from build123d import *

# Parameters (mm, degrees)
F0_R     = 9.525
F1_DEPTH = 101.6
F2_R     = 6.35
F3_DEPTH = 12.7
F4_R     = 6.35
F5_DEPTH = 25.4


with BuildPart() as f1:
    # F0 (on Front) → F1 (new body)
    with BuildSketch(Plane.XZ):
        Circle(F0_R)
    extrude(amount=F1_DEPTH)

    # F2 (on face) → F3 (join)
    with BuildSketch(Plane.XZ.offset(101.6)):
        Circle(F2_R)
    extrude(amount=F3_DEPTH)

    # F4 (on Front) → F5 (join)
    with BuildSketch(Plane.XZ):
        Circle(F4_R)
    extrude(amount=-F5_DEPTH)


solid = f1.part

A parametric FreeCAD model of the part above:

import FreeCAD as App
import Part
import Sketcher
from FreeCAD import Vector
Q = App.Units.Quantity

doc = App.newDocument("Part")
body = doc.addObject("PartDesign::Body", "Body")

# Sketch on XZ plane
sketch1 = doc.addObject("Sketcher::SketchObject", "Sketch")
body.addObject(sketch1)
sketch1.AttachmentSupport = (doc.XZ_Plane, [""])
sketch1.MapMode = "FlatFace"
sketch1.addGeometry(Part.Circle(Vector(0, 0, 0), Vector(0, 0, 1), 9.525), False)
sketch1.addConstraint([
    Sketcher.Constraint("Coincident", 0, 3, -1, 1),
    Sketcher.Constraint("Diameter", 0, Q("0.75 in")),
])
pad1 = doc.addObject("PartDesign::Pad", "Pad")
body.addObject(pad1)
pad1.Profile = sketch1
pad1.Length = Q("4 in")

# Sketch on XZ plane
sketch2 = doc.addObject("Sketcher::SketchObject", "Sketch001")
body.addObject(sketch2)
sketch2.AttachmentSupport = (doc.XZ_Plane, [""])
sketch2.MapMode = "FlatFace"
sketch2.AttachmentOffset = App.Placement(Vector(0, 0, 4 * 25.4), App.Rotation())
sketch2.addGeometry(Part.Circle(Vector(0, 0, 0), Vector(0, 0, 1), 6.35), False)
sketch2.addConstraint([
    Sketcher.Constraint("Coincident", 0, 3, -1, 1),
    Sketcher.Constraint("Diameter", 0, Q("0.5 in")),
])
pad2 = doc.addObject("PartDesign::Pad", "Pad001")
body.addObject(pad2)
pad2.Profile = sketch2
pad2.Length = Q("0.5 in")

# Sketch on XZ plane
sketch3 = doc.addObject("Sketcher::SketchObject", "Sketch002")
body.addObject(sketch3)
sketch3.AttachmentSupport = (doc.XZ_Plane, [""])
sketch3.MapMode = "FlatFace"
sketch3.addGeometry(Part.Circle(Vector(0, 0, 0), Vector(0, 0, 1), 6.35), False)
sketch3.addConstraint([
    Sketcher.Constraint("Coincident", 0, 3, -1, 1),
    Sketcher.Constraint("Diameter", 0, Q("0.5 in")),
])
pad3 = doc.addObject("PartDesign::Pad", "Pad002")
body.addObject(pad3)
pad3.Profile = sketch3
pad3.Length = Q("1 in")
pad3.Reversed = True

doc.recompute()
